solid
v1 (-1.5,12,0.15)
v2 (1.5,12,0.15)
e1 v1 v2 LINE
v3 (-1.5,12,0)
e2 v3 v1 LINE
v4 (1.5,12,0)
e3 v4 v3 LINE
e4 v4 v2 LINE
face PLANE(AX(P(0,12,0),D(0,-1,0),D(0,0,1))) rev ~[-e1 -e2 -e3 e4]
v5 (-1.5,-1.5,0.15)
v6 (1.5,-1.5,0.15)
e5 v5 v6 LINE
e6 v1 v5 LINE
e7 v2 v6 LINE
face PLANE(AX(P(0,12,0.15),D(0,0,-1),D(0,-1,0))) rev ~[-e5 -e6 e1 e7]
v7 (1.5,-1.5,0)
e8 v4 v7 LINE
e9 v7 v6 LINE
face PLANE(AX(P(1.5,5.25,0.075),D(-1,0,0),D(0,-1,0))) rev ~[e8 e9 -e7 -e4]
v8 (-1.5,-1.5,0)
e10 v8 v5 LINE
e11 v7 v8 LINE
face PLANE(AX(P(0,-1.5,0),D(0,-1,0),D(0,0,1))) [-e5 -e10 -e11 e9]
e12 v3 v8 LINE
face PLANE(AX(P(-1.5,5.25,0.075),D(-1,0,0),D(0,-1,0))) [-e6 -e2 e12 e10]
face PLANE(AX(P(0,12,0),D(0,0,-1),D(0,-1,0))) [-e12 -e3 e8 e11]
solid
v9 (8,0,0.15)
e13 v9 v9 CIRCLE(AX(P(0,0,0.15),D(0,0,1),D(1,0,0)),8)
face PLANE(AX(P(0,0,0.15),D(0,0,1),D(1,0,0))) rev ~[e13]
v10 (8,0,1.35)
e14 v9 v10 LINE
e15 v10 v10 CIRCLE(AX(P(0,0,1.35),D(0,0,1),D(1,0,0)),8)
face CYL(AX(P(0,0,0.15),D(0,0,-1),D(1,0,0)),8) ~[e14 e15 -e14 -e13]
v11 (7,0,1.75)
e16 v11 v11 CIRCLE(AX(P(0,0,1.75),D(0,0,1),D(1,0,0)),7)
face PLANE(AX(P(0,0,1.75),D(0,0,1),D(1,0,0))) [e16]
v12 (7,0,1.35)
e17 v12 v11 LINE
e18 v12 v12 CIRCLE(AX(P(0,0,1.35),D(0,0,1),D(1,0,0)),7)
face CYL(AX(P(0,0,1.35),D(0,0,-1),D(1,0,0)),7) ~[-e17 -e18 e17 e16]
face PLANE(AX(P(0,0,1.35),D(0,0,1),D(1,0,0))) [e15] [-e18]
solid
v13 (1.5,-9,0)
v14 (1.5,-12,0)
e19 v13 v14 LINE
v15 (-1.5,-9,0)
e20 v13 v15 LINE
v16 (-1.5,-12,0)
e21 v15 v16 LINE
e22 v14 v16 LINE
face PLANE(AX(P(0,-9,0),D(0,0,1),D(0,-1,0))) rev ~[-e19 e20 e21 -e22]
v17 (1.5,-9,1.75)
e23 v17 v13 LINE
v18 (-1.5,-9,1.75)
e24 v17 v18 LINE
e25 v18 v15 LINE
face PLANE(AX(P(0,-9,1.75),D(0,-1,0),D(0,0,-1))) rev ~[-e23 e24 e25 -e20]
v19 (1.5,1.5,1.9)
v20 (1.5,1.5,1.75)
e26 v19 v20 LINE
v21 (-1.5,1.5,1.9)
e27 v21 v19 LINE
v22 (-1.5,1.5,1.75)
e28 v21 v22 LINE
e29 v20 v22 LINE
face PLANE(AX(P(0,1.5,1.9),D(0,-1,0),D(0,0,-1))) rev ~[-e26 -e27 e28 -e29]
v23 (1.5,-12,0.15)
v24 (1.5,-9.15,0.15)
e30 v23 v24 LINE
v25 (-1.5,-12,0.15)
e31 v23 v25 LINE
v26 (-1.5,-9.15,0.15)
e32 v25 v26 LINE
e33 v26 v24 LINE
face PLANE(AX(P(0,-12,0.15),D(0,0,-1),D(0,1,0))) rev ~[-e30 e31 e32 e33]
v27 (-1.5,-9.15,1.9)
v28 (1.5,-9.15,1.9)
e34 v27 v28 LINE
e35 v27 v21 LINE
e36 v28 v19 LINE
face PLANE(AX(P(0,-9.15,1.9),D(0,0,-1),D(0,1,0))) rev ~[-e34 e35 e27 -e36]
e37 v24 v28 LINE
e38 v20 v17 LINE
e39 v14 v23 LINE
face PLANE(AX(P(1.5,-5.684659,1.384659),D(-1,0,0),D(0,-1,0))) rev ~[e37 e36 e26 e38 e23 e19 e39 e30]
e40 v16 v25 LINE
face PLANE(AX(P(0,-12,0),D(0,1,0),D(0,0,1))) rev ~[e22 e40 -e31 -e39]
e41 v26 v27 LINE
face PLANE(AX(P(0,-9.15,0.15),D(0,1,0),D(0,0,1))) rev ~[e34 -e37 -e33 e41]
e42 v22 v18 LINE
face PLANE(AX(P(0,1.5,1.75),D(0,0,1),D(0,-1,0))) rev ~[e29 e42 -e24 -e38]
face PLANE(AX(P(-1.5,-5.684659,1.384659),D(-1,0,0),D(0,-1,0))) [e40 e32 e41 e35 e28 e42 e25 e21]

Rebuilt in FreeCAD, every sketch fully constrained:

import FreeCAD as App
import Part
import Sketcher

V = App.Vector
Q = App.Units.Quantity


def add_polygon(sketch, points):
    """Adds a closed chain of lines whose ends are joined by coincident constraints."""
    first, n = sketch.GeometryCount, len(points)
    for a, b in zip(points, points[1:] + points[:1]):
        sketch.addGeometry(Part.LineSegment(App.Vector(*a, 0), App.Vector(*b, 0)), False)
    for i in range(n):
        sketch.addConstraint(Sketcher.Constraint("Coincident", first + i, 2, first + (i + 1) % n, 1))

doc = App.newDocument("Part")
body = doc.addObject("PartDesign::Body", "Body")

# Sketch on XY plane
sketch1 = body.newObject("Sketcher::SketchObject", "Sketch")
sketch1.AttachmentSupport = (doc.getObject("XY_Plane"), [""])
sketch1.MapMode = "FlatFace"
sketch1.AttachmentOffset = App.Placement(V(0, 0, 0.15), App.Rotation())
sketch1.addGeometry(Part.Circle(V(0, 0, 0), V(0, 0, 1), 8), False)
sketch1.addConstraint([
    Sketcher.Constraint("Coincident", 0, 3, -1, 1),
    Sketcher.Constraint("Diameter", 0, Q("16 mm")),
])
pad1 = body.newObject("PartDesign::Pad", "Pad")
pad1.Profile = sketch1
pad1.Length = 1.2

# Sketch on XY plane
sketch2 = body.newObject("Sketcher::SketchObject", "Sketch001")
sketch2.AttachmentSupport = (doc.getObject("XY_Plane"), [""])
sketch2.MapMode = "FlatFace"
sketch2.AttachmentOffset = App.Placement(V(0, 0, 1.35), App.Rotation())
sketch2.addGeometry(Part.Circle(V(0, 0, 0), V(0, 0, 1), 7), False)
sketch2.addConstraint([
    Sketcher.Constraint("Coincident", 0, 3, -1, 1),
    Sketcher.Constraint("Diameter", 0, Q("14 mm")),
])
pad2 = body.newObject("PartDesign::Pad", "Pad001")
pad2.Profile = sketch2
pad2.Length = 0.4
body2 = doc.addObject("PartDesign::Body", "Body001")
body2.AllowCompound = True

# Sketch on YZ plane
sketch3 = body2.newObject("Sketcher::SketchObject", "Sketch002")
sketch3.AttachmentSupport = (doc.getObject("YZ_Plane001"), [""])
sketch3.MapMode = "FlatFace"
add_polygon(sketch3, [(-1.5, 1.9), (-1.5, 1.75), (9, 1.75), (9, 0), (12, 0), (12, 0.15), (9.15, 0.15), (9.15, 1.9)])  # lines 0-7
add_polygon(sketch3, [(-12, 0.15), (-12, 0), (1.5, 0), (1.5, 0.15)])  # lines 8-11
sketch3.addConstraint([
    Sketcher.Constraint("Vertical", 0),
    Sketcher.Constraint("Horizontal", 1),
    Sketcher.Constraint("Vertical", 2),
    Sketcher.Constraint("Horizontal", 3),
    Sketcher.Constraint("Vertical", 4),
    Sketcher.Constraint("Horizontal", 5),
    Sketcher.Constraint("Vertical", 6),
    Sketcher.Constraint("Horizontal", 7),
    Sketcher.Constraint("Vertical", 8),
    Sketcher.Constraint("Horizontal", 9),
    Sketcher.Constraint("Vertical", 10),
    Sketcher.Constraint("Horizontal", 11),
    Sketcher.Constraint("Symmetric", 3, 2, 8, 2, -1, 1),
    Sketcher.Constraint("PointOnObject", 2, 2, -1),
    Sketcher.Constraint("Horizontal", 5, 2, 10, 2),
    Sketcher.Constraint("Equal", 0, 4),
    Sketcher.Constraint("DistanceX", 3, 1, 3, 2, Q("3 mm")),
    Sketcher.Constraint("DistanceX", 1, 1, 1, 2, Q("10.5 mm")),
    Sketcher.Constraint("DistanceX", 9, 1, 9, 2, Q("13.5 mm")),
    Sketcher.Constraint("DistanceX", -1, 1, 1, 2, Q("9 mm")),
    Sketcher.Constraint("DistanceX", 5, 2, 5, 1, Q("2.85 mm")),
    Sketcher.Constraint("DistanceY", 0, 2, 0, 1, Q("0.15 mm")),
    Sketcher.Constraint("DistanceY", 2, 2, 2, 1, Q("1.75 mm")),
])
pad3 = body2.newObject("PartDesign::Pad", "Pad002")
pad3.Profile = sketch3
pad3.Length = 3
pad3.Midplane = True
body3 = doc.addObject("PartDesign::Body", "Body002")
body3.AllowCompound = True
doc.recompute()

body2.Placement = App.Placement(V(0, 0, 0), App.Rotation(V(0, 0, 1), 180))
boolean = body3.newObject("PartDesign::Boolean", "Boolean")
boolean.Type = "Fuse"
boolean.addObjects([body2])

doc.recompute()
